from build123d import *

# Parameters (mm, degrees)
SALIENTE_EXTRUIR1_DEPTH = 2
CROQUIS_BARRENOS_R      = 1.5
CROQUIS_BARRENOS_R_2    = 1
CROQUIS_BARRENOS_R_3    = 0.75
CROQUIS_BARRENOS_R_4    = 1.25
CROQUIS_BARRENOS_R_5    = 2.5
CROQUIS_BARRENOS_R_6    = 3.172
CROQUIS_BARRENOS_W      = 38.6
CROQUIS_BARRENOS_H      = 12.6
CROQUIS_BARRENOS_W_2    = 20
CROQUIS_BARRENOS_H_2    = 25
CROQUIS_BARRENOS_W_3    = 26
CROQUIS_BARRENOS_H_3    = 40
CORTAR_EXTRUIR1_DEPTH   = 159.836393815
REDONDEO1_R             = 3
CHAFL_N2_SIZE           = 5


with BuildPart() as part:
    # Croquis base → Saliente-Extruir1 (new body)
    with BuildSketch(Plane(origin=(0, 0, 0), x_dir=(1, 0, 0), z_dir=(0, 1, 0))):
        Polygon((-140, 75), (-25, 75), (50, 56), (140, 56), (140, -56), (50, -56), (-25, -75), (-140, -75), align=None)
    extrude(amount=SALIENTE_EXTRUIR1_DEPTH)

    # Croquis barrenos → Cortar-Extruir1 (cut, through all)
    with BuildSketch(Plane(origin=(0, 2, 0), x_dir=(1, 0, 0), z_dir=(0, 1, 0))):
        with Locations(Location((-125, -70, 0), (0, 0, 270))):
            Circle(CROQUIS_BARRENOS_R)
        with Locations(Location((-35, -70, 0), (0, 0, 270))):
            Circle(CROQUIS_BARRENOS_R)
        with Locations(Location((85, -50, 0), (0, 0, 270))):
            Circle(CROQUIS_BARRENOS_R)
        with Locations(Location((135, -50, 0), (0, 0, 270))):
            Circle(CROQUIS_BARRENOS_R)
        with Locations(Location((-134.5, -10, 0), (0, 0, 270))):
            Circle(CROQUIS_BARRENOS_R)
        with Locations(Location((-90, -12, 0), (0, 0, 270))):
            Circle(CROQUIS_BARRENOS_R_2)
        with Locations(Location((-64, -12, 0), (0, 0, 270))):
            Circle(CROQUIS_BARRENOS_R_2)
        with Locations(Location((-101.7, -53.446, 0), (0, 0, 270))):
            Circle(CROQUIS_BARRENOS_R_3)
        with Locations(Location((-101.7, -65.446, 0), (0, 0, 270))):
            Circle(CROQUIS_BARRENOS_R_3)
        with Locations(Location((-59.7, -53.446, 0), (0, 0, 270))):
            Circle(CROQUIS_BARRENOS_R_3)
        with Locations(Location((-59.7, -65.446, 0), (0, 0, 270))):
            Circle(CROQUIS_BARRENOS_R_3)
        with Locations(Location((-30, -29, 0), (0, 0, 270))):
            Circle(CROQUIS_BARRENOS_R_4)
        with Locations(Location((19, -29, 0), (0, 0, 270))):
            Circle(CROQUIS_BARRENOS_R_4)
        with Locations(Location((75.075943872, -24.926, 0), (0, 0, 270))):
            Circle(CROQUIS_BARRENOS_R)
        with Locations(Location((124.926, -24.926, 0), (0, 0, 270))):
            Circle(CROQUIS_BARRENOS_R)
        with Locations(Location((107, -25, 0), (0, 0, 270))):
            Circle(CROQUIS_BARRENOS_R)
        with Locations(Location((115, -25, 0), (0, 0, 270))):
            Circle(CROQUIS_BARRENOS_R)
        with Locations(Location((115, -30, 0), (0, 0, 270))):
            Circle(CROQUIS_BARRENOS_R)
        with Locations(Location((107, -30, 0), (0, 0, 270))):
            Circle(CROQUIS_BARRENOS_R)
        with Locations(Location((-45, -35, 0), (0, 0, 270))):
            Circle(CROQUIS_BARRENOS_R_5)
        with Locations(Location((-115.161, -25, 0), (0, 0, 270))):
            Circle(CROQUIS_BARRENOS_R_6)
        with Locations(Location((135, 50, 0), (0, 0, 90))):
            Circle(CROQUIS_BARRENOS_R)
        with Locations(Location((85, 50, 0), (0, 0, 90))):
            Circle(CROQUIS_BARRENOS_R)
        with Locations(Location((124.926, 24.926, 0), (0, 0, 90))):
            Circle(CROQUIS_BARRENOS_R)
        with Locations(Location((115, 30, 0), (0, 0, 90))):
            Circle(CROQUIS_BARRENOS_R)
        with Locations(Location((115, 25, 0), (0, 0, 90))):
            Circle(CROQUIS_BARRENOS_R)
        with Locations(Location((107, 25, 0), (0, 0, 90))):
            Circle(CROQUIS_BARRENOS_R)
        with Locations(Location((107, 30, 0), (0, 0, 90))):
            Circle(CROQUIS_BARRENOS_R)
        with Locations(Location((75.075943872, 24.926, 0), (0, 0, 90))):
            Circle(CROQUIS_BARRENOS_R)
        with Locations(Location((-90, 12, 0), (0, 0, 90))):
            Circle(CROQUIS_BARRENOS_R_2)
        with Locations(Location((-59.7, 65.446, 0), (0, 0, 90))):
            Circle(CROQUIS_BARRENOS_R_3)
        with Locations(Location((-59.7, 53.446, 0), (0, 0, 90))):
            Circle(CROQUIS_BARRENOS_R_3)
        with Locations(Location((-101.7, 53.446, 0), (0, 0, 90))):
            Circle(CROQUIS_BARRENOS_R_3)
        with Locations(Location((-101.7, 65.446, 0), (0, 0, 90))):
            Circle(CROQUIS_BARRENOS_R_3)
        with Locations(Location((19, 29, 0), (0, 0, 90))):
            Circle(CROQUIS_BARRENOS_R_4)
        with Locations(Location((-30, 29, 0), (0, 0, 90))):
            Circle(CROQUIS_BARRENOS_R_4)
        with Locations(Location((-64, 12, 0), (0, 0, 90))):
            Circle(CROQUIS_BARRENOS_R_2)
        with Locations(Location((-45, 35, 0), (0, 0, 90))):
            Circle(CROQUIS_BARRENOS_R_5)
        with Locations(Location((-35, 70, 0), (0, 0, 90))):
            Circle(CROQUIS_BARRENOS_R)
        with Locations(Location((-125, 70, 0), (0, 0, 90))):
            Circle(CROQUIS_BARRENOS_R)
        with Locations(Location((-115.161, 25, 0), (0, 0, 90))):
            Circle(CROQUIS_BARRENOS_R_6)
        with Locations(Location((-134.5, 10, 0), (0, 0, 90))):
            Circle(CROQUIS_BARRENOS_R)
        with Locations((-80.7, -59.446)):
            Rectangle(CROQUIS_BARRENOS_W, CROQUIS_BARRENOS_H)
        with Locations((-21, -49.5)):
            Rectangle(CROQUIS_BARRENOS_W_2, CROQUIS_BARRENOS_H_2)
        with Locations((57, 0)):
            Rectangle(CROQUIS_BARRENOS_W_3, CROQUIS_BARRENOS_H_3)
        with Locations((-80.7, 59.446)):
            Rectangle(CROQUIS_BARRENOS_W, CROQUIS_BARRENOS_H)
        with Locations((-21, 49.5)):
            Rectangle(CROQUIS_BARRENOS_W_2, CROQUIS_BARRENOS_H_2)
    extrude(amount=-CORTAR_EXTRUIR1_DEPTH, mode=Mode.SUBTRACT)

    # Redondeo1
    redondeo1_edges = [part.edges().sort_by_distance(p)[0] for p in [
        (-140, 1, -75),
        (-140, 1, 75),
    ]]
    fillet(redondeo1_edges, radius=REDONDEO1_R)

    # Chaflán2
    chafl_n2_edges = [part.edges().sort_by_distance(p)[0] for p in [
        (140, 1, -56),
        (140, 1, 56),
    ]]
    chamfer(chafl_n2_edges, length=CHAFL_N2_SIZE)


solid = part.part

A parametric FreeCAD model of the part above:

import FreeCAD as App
import Part
import Sketcher
from FreeCAD import Vector


def edges_at(feature, points):
    """Names of the edges that pass closest to the given points."""
    edges = feature.Shape.Edges
    near = lambda p: min(range(len(edges)), key=lambda i: edges[i].distToShape(Part.Vertex(*p))[0])
    return sorted({f"Edge{near(p) + 1}" for p in points})

doc = App.newDocument("Part")
body = doc.addObject("PartDesign::Body", "Body")

# Sketch on XZ plane
sketch1 = body.newObject("Sketcher::SketchObject", "Sketch")
sketch1.AttachmentSupport = (doc.getObject("XZ_Plane"), [""])
sketch1.MapMode = "FlatFace"
sketch1.addGeometry([
    Part.LineSegment(Vector(-25, -75, 0), Vector(-140, -75, 0)),  # 0
    Part.LineSegment(Vector(-140, -75, 0), Vector(-140, 75, 0)),  # 1
    Part.LineSegment(Vector(-140, 75, 0), Vector(-25, 75, 0)),  # 2
    Part.LineSegment(Vector(-25, 75, 0), Vector(50, 56, 0)),  # 3
    Part.LineSegment(Vector(50, 56, 0), Vector(140, 56, 0)),  # 4
    Part.LineSegment(Vector(140, 56, 0), Vector(140, -56, 0)),  # 5
    Part.LineSegment(Vector(140, -56, 0), Vector(50, -56, 0)),  # 6
    Part.LineSegment(Vector(50, -56, 0), Vector(-25, -75, 0)),  # 7
], False)
sketch1.addConstraint([
    Sketcher.Constraint("Coincident", 0, 2, 1, 1),
    Sketcher.Constraint("Coincident", 1, 2, 2, 1),
    Sketcher.Constraint("Coincident", 2, 2, 3, 1),
    Sketcher.Constraint("Coincident", 3, 2, 4, 1),
    Sketcher.Constraint("Coincident", 4, 2, 5, 1),
    Sketcher.Constraint("Coincident", 5, 2, 6, 1),
    Sketcher.Constraint("Coincident", 6, 2, 7, 1),
    Sketcher.Constraint("Coincident", 7, 2, 0, 1),
    Sketcher.Constraint("Horizontal", 0),
    Sketcher.Constraint("Vertical", 1),
    Sketcher.Constraint("Horizontal", 2),
    Sketcher.Constraint("Horizontal", 4),
    Sketcher.Constraint("Vertical", 5),
    Sketcher.Constraint("Horizontal", 6),
    Sketcher.Constraint("Symmetric", 3, 2, 6, 2, -1),
    Sketcher.Constraint("Symmetric", 2, 2, 7, 2, -1),
    Sketcher.Constraint("DistanceX", 0, 2, 0, 1, 115.0),
    Sketcher.Constraint("DistanceX", 4, 1, 4, 2, 90.0),
    Sketcher.Constraint("DistanceY", 1, 1, 1, 2, 150.0),
    Sketcher.Constraint("DistanceY", 5, 2, 5, 1, 112.0),
    Sketcher.Constraint("DistanceX", 0, 2, -1, 1, 140.0),
    Sketcher.Constraint("DistanceX", -1, 1, 3, 2, 50.0),
])
pad1 = body.newObject("PartDesign::Pad", "Pad")
pad1.Profile = sketch1
pad1.Length = 2
pad1.Reversed = True

# Sketch on XZ plane
sketch2 = body.newObject("Sketcher::SketchObject", "Sketch001")
sketch2.AttachmentSupport = (doc.getObject("XZ_Plane"), [""])
sketch2.MapMode = "FlatFace"
sketch2.AttachmentOffset = App.Placement(Vector(0, 0, -2), App.Rotation())
sketch2.addGeometry([
    Part.Circle(Vector(-125, 70, 0), Vector(0, 0, 1), 1.5),  # 0
    Part.Circle(Vector(-35, 70, 0), Vector(0, 0, 1), 1.5),  # 1
    Part.Circle(Vector(85, 50, 0), Vector(0, 0, 1), 1.5),  # 2
    Part.Circle(Vector(135, 50, 0), Vector(0, 0, 1), 1.5),  # 3
    Part.Circle(Vector(-134.5, 10, 0), Vector(0, 0, 1), 1.5),  # 4
    Part.Circle(Vector(-90, 12, 0), Vector(0, 0, 1), 1),  # 5
    Part.Circle(Vector(-64, 12, 0), Vector(0, 0, 1), 1),  # 6
    Part.Circle(Vector(-101.7, 53.446, 0), Vector(0, 0, 1), 0.75),  # 7
    Part.Circle(Vector(-101.7, 65.446, 0), Vector(0, 0, 1), 0.75),  # 8
    Part.Circle(Vector(-59.7, 53.446, 0), Vector(0, 0, 1), 0.75),  # 9
    Part.Circle(Vector(-59.7, 65.446, 0), Vector(0, 0, 1), 0.75),  # 10
    Part.Circle(Vector(-30, 29, 0), Vector(0, 0, 1), 1.25),  # 11
    Part.Circle(Vector(19, 29, 0), Vector(0, 0, 1), 1.25),  # 12
    Part.Circle(Vector(75.075944, 24.926, 0), Vector(0, 0, 1), 1.5),  # 13
    Part.Circle(Vector(124.926, 24.926, 0), Vector(0, 0, 1), 1.5),  # 14
    Part.Circle(Vector(107, 25, 0), Vector(0, 0, 1), 1.5),  # 15
    Part.Circle(Vector(115, 25, 0), Vector(0, 0, 1), 1.5),  # 16
    Part.Circle(Vector(115, 30, 0), Vector(0, 0, 1), 1.5),  # 17
    Part.Circle(Vector(107, 30, 0), Vector(0, 0, 1), 1.5),  # 18
    Part.Circle(Vector(-45, 35, 0), Vector(0, 0, 1), 2.5),  # 19
    Part.Circle(Vector(-115.161, 25, 0), Vector(0, 0, 1), 3.172),  # 20
    Part.Circle(Vector(135, -50, 0), Vector(0, 0, 1), 1.5),  # 21
    Part.Circle(Vector(85, -50, 0), Vector(0, 0, 1), 1.5),  # 22
    Part.Circle(Vector(124.926, -24.926, 0), Vector(0, 0, 1), 1.5),  # 23
    Part.Circle(Vector(115, -30, 0), Vector(0, 0, 1), 1.5),  # 24
    Part.Circle(Vector(115, -25, 0), Vector(0, 0, 1), 1.5),  # 25
    Part.Circle(Vector(107, -25, 0), Vector(0, 0, 1), 1.5),  # 26
    Part.Circle(Vector(107, -30, 0), Vector(0, 0, 1), 1.5),  # 27
    Part.Circle(Vector(75.075944, -24.926, 0), Vector(0, 0, 1), 1.5),  # 28
    Part.Circle(Vector(-90, -12, 0), Vector(0, 0, 1), 1),  # 29
    Part.Circle(Vector(-59.7, -65.446, 0), Vector(0, 0, 1), 0.75),  # 30
    Part.Circle(Vector(-59.7, -53.446, 0), Vector(0, 0, 1), 0.75),  # 31
    Part.Circle(Vector(-101.7, -53.446, 0), Vector(0, 0, 1), 0.75),  # 32
    Part.Circle(Vector(-101.7, -65.446, 0), Vector(0, 0, 1), 0.75),  # 33
    Part.Circle(Vector(19, -29, 0), Vector(0, 0, 1), 1.25),  # 34
    Part.Circle(Vector(-30, -29, 0), Vector(0, 0, 1), 1.25),  # 35
    Part.Circle(Vector(-64, -12, 0), Vector(0, 0, 1), 1),  # 36
    Part.Circle(Vector(-45, -35, 0), Vector(0, 0, 1), 2.5),  # 37
    Part.Circle(Vector(-35, -70, 0), Vector(0, 0, 1), 1.5),  # 38
    Part.Circle(Vector(-125, -70, 0), Vector(0, 0, 1), 1.5),  # 39
    Part.Circle(Vector(-115.161, -25, 0), Vector(0, 0, 1), 3.172),  # 40
    Part.Circle(Vector(-134.5, -10, 0), Vector(0, 0, 1), 1.5),  # 41
    Part.LineSegment(Vector(-100, 53.146, 0), Vector(-100, 65.746, 0)),  # 42
    Part.LineSegment(Vector(-100, 65.746, 0), Vector(-61.4, 65.746, 0)),  # 43
    Part.LineSegment(Vector(-61.4, 65.746, 0), Vector(-61.4, 53.146, 0)),  # 44
    Part.LineSegment(Vector(-61.4, 53.146, 0), Vector(-100, 53.146, 0)),  # 45
    Part.LineSegment(Vector(-31, 37, 0), Vector(-31, 62, 0)),  # 46
    Part.LineSegment(Vector(-31, 62, 0), Vector(-11, 62, 0)),  # 47
    Part.LineSegment(Vector(-11, 62, 0), Vector(-11, 37, 0)),  # 48
    Part.LineSegment(Vector(-11, 37, 0), Vector(-31, 37, 0)),  # 49
    Part.LineSegment(Vector(44, -20, 0), Vector(44, 20, 0)),  # 50
    Part.LineSegment(Vector(44, 20, 0), Vector(70, 20, 0)),  # 51
    Part.LineSegment(Vector(70, 20, 0), Vector(70, -20, 0)),  # 52
    Part.LineSegment(Vector(70, -20, 0), Vector(44, -20, 0)),  # 53
    Part.LineSegment(Vector(-100, -65.746, 0), Vector(-100, -53.146, 0)),  # 54
    Part.LineSegment(Vector(-100, -53.146, 0), Vector(-61.4, -53.146, 0)),  # 55
    Part.LineSegment(Vector(-61.4, -53.146, 0), Vector(-61.4, -65.746, 0)),  # 56
    Part.LineSegment(Vector(-61.4, -65.746, 0), Vector(-100, -65.746, 0)),  # 57
    Part.LineSegment(Vector(-31, -62, 0), Vector(-31, -37, 0)),  # 58
    Part.LineSegment(Vector(-31, -37, 0), Vector(-11, -37, 0)),  # 59
    Part.LineSegment(Vector(-11, -37, 0), Vector(-11, -62, 0)),  # 60
    Part.LineSegment(Vector(-11, -62, 0), Vector(-31, -62, 0)),  # 61
], False)
sketch2.addConstraint([
    Sketcher.Constraint("Coincident", 42, 2, 43, 1),
    Sketcher.Constraint("Coincident", 43, 2, 44, 1),
    Sketcher.Constraint("Coincident", 44, 2, 45, 1),
    Sketcher.Constraint("Coincident", 45, 2, 42, 1),
    Sketcher.Constraint("Coincident", 46, 2, 47, 1),
    Sketcher.Constraint("Coincident", 47, 2, 48, 1),
    Sketcher.Constraint("Coincident", 48, 2, 49, 1),
    Sketcher.Constraint("Coincident", 49, 2, 46, 1),
    Sketcher.Constraint("Coincident", 50, 2, 51, 1),
    Sketcher.Constraint("Coincident", 51, 2, 52, 1),
    Sketcher.Constraint("Coincident", 52, 2, 53, 1),
    Sketcher.Constraint("Coincident", 53, 2, 50, 1),
    Sketcher.Constraint("Coincident", 54, 2, 55, 1),
    Sketcher.Constraint("Coincident", 55, 2, 56, 1),
    Sketcher.Constraint("Coincident", 56, 2, 57, 1),
    Sketcher.Constraint("Coincident", 57, 2, 54, 1),
    Sketcher.Constraint("Coincident", 58, 2, 59, 1),
    Sketcher.Constraint("Coincident", 59, 2, 60, 1),
    Sketcher.Constraint("Coincident", 60, 2, 61, 1),
    Sketcher.Constraint("Coincident", 61, 2, 58, 1),
    Sketcher.Constraint("Vertical", 42),
    Sketcher.Constraint("Horizontal", 43),
    Sketcher.Constraint("Vertical", 44),
    Sketcher.Constraint("Horizontal", 45),
    Sketcher.Constraint("Vertical", 46),
    Sketcher.Constraint("Horizontal", 47),
    Sketcher.Constraint("Vertical", 48),
    Sketcher.Constraint("Horizontal", 49),
    Sketcher.Constraint("Vertical", 50),
    Sketcher.Constraint("Horizontal", 51),
    Sketcher.Constraint("Vertical", 52),
    Sketcher.Constraint("Horizontal", 53),
    Sketcher.Constraint("Vertical", 54),
    Sketcher.Constraint("Horizontal", 55),
    Sketcher.Constraint("Vertical", 56),
    Sketcher.Constraint("Horizontal", 57),
    Sketcher.Constraint("Vertical", 58),
    Sketcher.Constraint("Horizontal", 59),
    Sketcher.Constraint("Vertical", 60),
    Sketcher.Constraint("Horizontal", 61),
    Sketcher.Constraint("Equal", 0, 1),
    Sketcher.Constraint("Equal", 1, 2),
    Sketcher.Constraint("Equal", 2, 3),
    Sketcher.Constraint("Equal", 3, 4),
    Sketcher.Constraint("Equal", 5, 6),
    Sketcher.Constraint("Equal", 7, 8),
    Sketcher.Constraint("Equal", 8, 9),
    Sketcher.Constraint("Equal", 9, 10),
    Sketcher.Constraint("Equal", 11, 12),
    Sketcher.Constraint("Equal", 4, 13),
    Sketcher.Constraint("Equal", 13, 14),
    Sketcher.Constraint("Equal", 14, 15),
    Sketcher.Constraint("Equal", 15, 16),
    Sketcher.Constraint("Equal", 16, 17),
    Sketcher.Constraint("Equal", 17, 18),
    Sketcher.Constraint("Equal", 18, 21),
    Sketcher.Constraint("Equal", 21, 22),
    Sketcher.Constraint("Equal", 22, 23),
    Sketcher.Constraint("Equal", 23, 24),
    Sketcher.Constraint("Equal", 24, 25),
    Sketcher.Constraint("Equal", 25, 26),
    Sketcher.Constraint("Equal", 26, 27),
    Sketcher.Constraint("Equal", 27, 28),
    Sketcher.Constraint("Equal", 6, 29),
    Sketcher.Constraint("Equal", 10, 30),
    Sketcher.Constraint("Equal", 30, 31),
    Sketcher.Constraint("Equal", 31, 32),
    Sketcher.Constraint("Equal", 32, 33),
    Sketcher.Constraint("Equal", 12, 34),
    Sketcher.Constraint("Equal", 34, 35),
    Sketcher.Constraint("Equal", 29, 36),
    Sketcher.Constraint("Equal", 19, 37),
    Sketcher.Constraint("Equal", 28, 38),
    Sketcher.Constraint("Equal", 38, 39),
    Sketcher.Constraint("Equal", 20, 40),
    Sketcher.Constraint("Equal", 39, 41),
    Sketcher.Constraint("Symmetric", 3, 3, 21, 3, -1),
    Sketcher.Constraint("Symmetric", 2, 3, 22, 3, -1),
    Sketcher.Constraint("Symmetric", 14, 3, 23, 3, -1),
    Sketcher.Constraint("Symmetric", 17, 3, 24, 3, -1),
    Sketcher.Constraint("Symmetric", 16, 3, 25, 3, -1),
    Sketcher.Constraint("Symmetric", 15, 3, 26, 3, -1),
    Sketcher.Constraint("Symmetric", 18, 3, 27, 3, -1),
    Sketcher.Constraint("Symmetric", 13, 3, 28, 3, -1),
    Sketcher.Constraint("Symmetric", 5, 3, 29, 3, -1),
    Sketcher.Constraint("Symmetric", 10, 3, 30, 3, -1),
    Sketcher.Constraint("Symmetric", 9, 3, 31, 3, -1),
    Sketcher.Constraint("Symmetric", 7, 3, 32, 3, -1),
    Sketcher.Constraint("Symmetric", 8, 3, 33, 3, -1),
    Sketcher.Constraint("Symmetric", 12, 3, 34, 3, -1),
    Sketcher.Constraint("Symmetric", 11, 3, 35, 3, -1),
    Sketcher.Constraint("Symmetric", 6, 3, 36, 3, -1),
    Sketcher.Constraint("Symmetric", 19, 3, 37, 3, -1),
    Sketcher.Constraint("Symmetric", 1, 3, 38, 3, -1),
    Sketcher.Constraint("Symmetric", 0, 3, 39, 3, -1),
    Sketcher.Constraint("Symmetric", 20, 3, 40, 3, -1),
    Sketcher.Constraint("Symmetric", 4, 3, 41, 3, -1),
    Sketcher.Constraint("Symmetric", 45, 2, 54, 2, -1),
    Sketcher.Constraint("Symmetric", 43, 2, 56, 2, -1),
    Sketcher.Constraint("Symmetric", 49, 2, 58, 2, -1),
    Sketcher.Constraint("Symmetric", 47, 2, 60, 2, -1),
    Sketcher.Constraint("Horizontal", 0, 3, 1, 3),
    Sketcher.Constraint("Horizontal", 2, 3, 3, 3),
    Sketcher.Constraint("Horizontal", 5, 3, 6, 3),
    Sketcher.Constraint("Horizontal", 7, 3, 9, 3),
    Sketcher.Constraint("Horizontal", 8, 3, 10, 3),
    Sketcher.Constraint("Horizontal", 11, 3, 12, 3),
    Sketcher.Constraint("Horizontal", 13, 3, 14, 3),
    Sketcher.Constraint("Horizontal", 15, 3, 16, 3),
    Sketcher.Constraint("Horizontal", 17, 3, 18, 3),
    Sketcher.Constraint("Horizontal", 16, 3, 20, 3),
    Sketcher.Constraint("Vertical", 7, 3, 8, 3),
    Sketcher.Constraint("Vertical", 9, 3, 10, 3),
    Sketcher.Constraint("Vertical", 16, 3, 17, 3),
    Sketcher.Constraint("Vertical", 15, 3, 18, 3),
    Sketcher.Constraint("Diameter", 0, 3.0),
    Sketcher.Constraint("Diameter", 5, 2.0),
    Sketcher.Constraint("Diameter", 19, 5.0),
    Sketcher.Constraint("Diameter", 7, 1.5),
    Sketcher.Constraint("Diameter", 11, 2.5),
    Sketcher.Constraint("DistanceX", 47, 1, 47, 2, 20.0),
    Sketcher.Constraint("DistanceX", 51, 1, 51, 2, 26.0),
    Sketcher.Constraint("DistanceY", 46, 1, 46, 2, 25.0),
    Sketcher.Constraint("DistanceY", 50, 1, 50, 2, 40.0),
    Sketcher.Constraint("Diameter", 20, 6.344),
    Sketcher.Constraint("DistanceX", 43, 1, 43, 2, 38.6),
    Sketcher.Constraint("DistanceY", 42, 1, 42, 2, 12.6),
    Sketcher.Constraint("DistanceX", 0, 3, -1, 1, 125.0),
    Sketcher.Constraint("DistanceY", -1, 1, 0, 3, 70.0),
    Sketcher.Constraint("DistanceX", 1, 3, -1, 1, 35.0),
    Sketcher.Constraint("DistanceX", -1, 1, 2, 3, 85.0),
    Sketcher.Constraint("DistanceY", -1, 1, 2, 3, 50.0),
    Sketcher.Constraint("DistanceX", -1, 1, 3, 3, 135.0),
    Sketcher.Constraint("DistanceY", -1, 1, 4, 3, 10.0),
    Sketcher.Constraint("DistanceX", 5, 3, -1, 1, 90.0),
    Sketcher.Constraint("DistanceY", -1, 1, 5, 3, 12.0),
    Sketcher.Constraint("DistanceX", 6, 3, -1, 1, 64.0),
    Sketcher.Constraint("DistanceX", 11, 3, -1, 1, 30.0),
    Sketcher.Constraint("DistanceY", -1, 1, 11, 3, 29.0),
    Sketcher.Constraint("DistanceX", -1, 1, 12, 3, 19.0),
    Sketcher.Constraint("DistanceX", -1, 1, 15, 3, 107.0),
    Sketcher.Constraint("DistanceY", -1, 1, 15, 3, 25.0),
    Sketcher.Constraint("DistanceX", -1, 1, 16, 3, 115.0),
    Sketcher.Constraint("DistanceY", -1, 1, 17, 3, 30.0),
    Sketcher.Constraint("DistanceX", 19, 3, -1, 1, 45.0),
    Sketcher.Constraint("DistanceY", -1, 1, 19, 3, 35.0),
    Sketcher.Constraint("DistanceX", 42, 2, -1, 1, 100.0),
    Sketcher.Constraint("DistanceX", 46, 2, -1, 1, 31.0),
    Sketcher.Constraint("DistanceY", -1, 1, 46, 2, 62.0),
    Sketcher.Constraint("DistanceX", -1, 1, 50, 2, 44.0),
    Sketcher.Constraint("DistanceY", -1, 1, 50, 2, 20.0),
    Sketcher.Constraint("DistanceX", 4, 3, -1, 1, 134.5),
    Sketcher.Constraint("DistanceX", 7, 3, -1, 1, 101.7),
    Sketcher.Constraint("DistanceX", 9, 3, -1, 1, 59.7),
    Sketcher.Constraint("DistanceY", -1, 1, 7, 3, 53.446),
    Sketcher.Constraint("DistanceY", -1, 1, 8, 3, 65.446),
    Sketcher.Constraint("DistanceY", -1, 1, 13, 3, 24.926),
    Sketcher.Constraint("DistanceX", -1, 1, 14, 3, 124.926),
    Sketcher.Constraint("DistanceX", 20, 3, -1, 1, 115.161),
    Sketcher.Constraint("DistanceY", -1, 1, 42, 2, 65.746),
    Sketcher.Constraint("DistanceX", -1, 1, 13, 3, 75.075944),
])
pocket1 = body.newObject("PartDesign::Pocket", "Pocket")
pocket1.Profile = sketch2
pocket1.Type = "ThroughAll"
pocket1.Reversed = True
doc.recompute()

fillet = body.newObject("PartDesign::Fillet", "Fillet")
fillet.Base = (pocket1, edges_at(pocket1, [(-140, 1, -75), (-140, 1, 75)]))
fillet.Radius = 3
doc.recompute()

chamfer = body.newObject("PartDesign::Chamfer", "Chamfer")
chamfer.Base = (fillet, edges_at(fillet, [(140, 1, -56), (140, 1, 56)]))
chamfer.Size = 5

doc.recompute()
